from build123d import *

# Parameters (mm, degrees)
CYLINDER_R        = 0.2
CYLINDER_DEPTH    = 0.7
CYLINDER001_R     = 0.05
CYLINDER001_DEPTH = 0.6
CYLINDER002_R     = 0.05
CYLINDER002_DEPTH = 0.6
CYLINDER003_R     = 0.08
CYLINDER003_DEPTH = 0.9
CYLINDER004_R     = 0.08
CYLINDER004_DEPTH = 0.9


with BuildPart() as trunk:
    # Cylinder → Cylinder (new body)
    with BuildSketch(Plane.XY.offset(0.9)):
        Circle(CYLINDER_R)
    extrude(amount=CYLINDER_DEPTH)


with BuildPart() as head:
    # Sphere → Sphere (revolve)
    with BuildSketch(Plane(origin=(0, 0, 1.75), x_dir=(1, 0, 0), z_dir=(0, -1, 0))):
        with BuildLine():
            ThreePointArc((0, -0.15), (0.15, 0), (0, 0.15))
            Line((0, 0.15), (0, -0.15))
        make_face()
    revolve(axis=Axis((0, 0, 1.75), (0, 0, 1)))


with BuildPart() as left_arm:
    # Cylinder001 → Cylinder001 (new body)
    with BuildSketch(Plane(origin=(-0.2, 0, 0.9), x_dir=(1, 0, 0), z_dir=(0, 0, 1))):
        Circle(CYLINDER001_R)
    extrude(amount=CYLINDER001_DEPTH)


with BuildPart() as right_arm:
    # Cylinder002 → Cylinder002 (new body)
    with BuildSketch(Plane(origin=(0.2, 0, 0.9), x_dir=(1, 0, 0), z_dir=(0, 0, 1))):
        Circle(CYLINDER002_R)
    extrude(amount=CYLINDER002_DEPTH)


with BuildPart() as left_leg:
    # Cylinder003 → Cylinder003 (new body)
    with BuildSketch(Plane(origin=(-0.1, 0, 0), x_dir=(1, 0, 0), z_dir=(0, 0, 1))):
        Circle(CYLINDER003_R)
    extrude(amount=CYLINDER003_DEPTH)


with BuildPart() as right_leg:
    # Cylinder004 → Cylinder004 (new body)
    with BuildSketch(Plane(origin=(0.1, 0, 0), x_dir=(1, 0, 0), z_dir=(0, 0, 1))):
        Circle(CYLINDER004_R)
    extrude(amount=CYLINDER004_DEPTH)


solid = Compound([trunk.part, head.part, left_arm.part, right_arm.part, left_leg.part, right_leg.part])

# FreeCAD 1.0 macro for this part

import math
import FreeCAD as App
import Part
import Sketcher
Q = App.Units.Quantity

doc = App.newDocument("Part")
body = doc.addObject("PartDesign::Body", "Body")

# Sketch on XY plane
sketch1 = body.newObject("Sketcher::SketchObject", "Sketch")
sketch1.AttachmentSupport = (doc.getObject("XY_Plane"), [""])
sketch1.MapMode = "FlatFace"
sketch1.AttachmentOffset = App.Placement(App.Vector(0, 0, 0.9), App.Rotation())
sketch1.addGeometry(Part.Circle(App.Vector(0, 0, 0), App.Vector(0, 0, 1), 0.2), False)
sketch1.addConstraint([
    Sketcher.Constraint("Coincident", 0, 3, -1, 1),
    Sketcher.Constraint("Diameter", 0, Q("0.4 mm")),
])
pad1 = body.newObject("PartDesign::Pad", "Pad")
pad1.Profile = sketch1
pad1.Length = 0.7
body2 = doc.addObject("PartDesign::Body", "Body001")

# Sketch on XZ plane
sketch2 = body2.newObject("Sketcher::SketchObject", "Sketch001")
sketch2.AttachmentSupport = (doc.getObject("XZ_Plane001"), [""])
sketch2.MapMode = "FlatFace"
sketch2.addGeometry([
    Part.ArcOfCircle(Part.Circle(App.Vector(0, 1.75, 0), App.Vector(0, 0, 1), 0.15), math.radians(-90), math.radians(90)),
    Part.LineSegment(App.Vector(0, 1.9, 0), App.Vector(0, 1.6, 0)),
], False)
sketch2.addConstraint([
    Sketcher.Constraint("Coincident", 0, 1, 1, 2),
    Sketcher.Constraint("Coincident", 1, 1, 0, 2),
    Sketcher.Constraint("Vertical", 1),
    Sketcher.Constraint("PointOnObject", 0, 3, -2),
    Sketcher.Constraint("PointOnObject", 0, 1, -2),
    Sketcher.Constraint("Radius", 0, Q("0.15 mm")),
    Sketcher.Constraint("DistanceY", -1, 1, 0, 1, Q("1.6 mm")),
])
revolution = body2.newObject("PartDesign::Revolution", "Revolution")
revolution.Profile = sketch2
revolution.ReferenceAxis = (sketch2, ["V_Axis"])
revolution.Angle = 360
body3 = doc.addObject("PartDesign::Body", "Body002")

# Sketch on XY plane
sketch3 = body3.newObject("Sketcher::SketchObject", "Sketch002")
sketch3.AttachmentSupport = (doc.getObject("XY_Plane002"), [""])
sketch3.MapMode = "FlatFace"
sketch3.AttachmentOffset = App.Placement(App.Vector(0, 0, 0.9), App.Rotation())
sketch3.addGeometry(Part.Circle(App.Vector(-0.2, 0, 0), App.Vector(0, 0, 1), 0.05), False)
sketch3.addConstraint([
    Sketcher.Constraint("PointOnObject", 0, 3, -1),
    Sketcher.Constraint("Diameter", 0, Q("0.1 mm")),
    Sketcher.Constraint("DistanceX", 0, 3, -1, 1, Q("0.2 mm")),
])
pad2 = body3.newObject("PartDesign::Pad", "Pad001")
pad2.Profile = sketch3
pad2.Length = 0.6
body4 = doc.addObject("PartDesign::Body", "Body003")

# Sketch on XY plane
sketch4 = body4.newObject("Sketcher::SketchObject", "Sketch003")
sketch4.AttachmentSupport = (doc.getObject("XY_Plane003"), [""])
sketch4.MapMode = "FlatFace"
sketch4.AttachmentOffset = App.Placement(App.Vector(0, 0, 0.9), App.Rotation())
sketch4.addGeometry(Part.Circle(App.Vector(0.2, 0, 0), App.Vector(0, 0, 1), 0.05), False)
sketch4.addConstraint([
    Sketcher.Constraint("PointOnObject", 0, 3, -1),
    Sketcher.Constraint("Diameter", 0, Q("0.1 mm")),
    Sketcher.Constraint("DistanceX", -1, 1, 0, 3, Q("0.2 mm")),
])
pad3 = body4.newObject("PartDesign::Pad", "Pad002")
pad3.Profile = sketch4
pad3.Length = 0.6
body5 = doc.addObject("PartDesign::Body", "Body004")

# Sketch on XY plane
sketch5 = body5.newObject("Sketcher::SketchObject", "Sketch004")
sketch5.AttachmentSupport = (doc.getObject("XY_Plane004"), [""])
sketch5.MapMode = "FlatFace"
sketch5.addGeometry(Part.Circle(App.Vector(-0.1, 0, 0), App.Vector(0, 0, 1), 0.08), False)
sketch5.addConstraint([
    Sketcher.Constraint("PointOnObject", 0, 3, -1),
    Sketcher.Constraint("Diameter", 0, Q("0.16 mm")),
    Sketcher.Constraint("DistanceX", 0, 3, -1, 1, Q("0.1 mm")),
])
pad4 = body5.newObject("PartDesign::Pad", "Pad003")
pad4.Profile = sketch5
pad4.Length = 0.9
body6 = doc.addObject("PartDesign::Body", "Body005")

# Sketch on XY plane
sketch6 = body6.newObject("Sketcher::SketchObject", "Sketch005")
sketch6.AttachmentSupport = (doc.getObject("XY_Plane005"), [""])
sketch6.MapMode = "FlatFace"
sketch6.addGeometry(Part.Circle(App.Vector(0.1, 0, 0), App.Vector(0, 0, 1), 0.08), False)
sketch6.addConstraint([
    Sketcher.Constraint("PointOnObject", 0, 3, -1),
    Sketcher.Constraint("Diameter", 0, Q("0.16 mm")),
    Sketcher.Constraint("DistanceX", -1, 1, 0, 3, Q("0.1 mm")),
])
pad5 = body6.newObject("PartDesign::Pad", "Pad004")
pad5.Profile = sketch6
pad5.Length = 0.9

doc.recompute()
